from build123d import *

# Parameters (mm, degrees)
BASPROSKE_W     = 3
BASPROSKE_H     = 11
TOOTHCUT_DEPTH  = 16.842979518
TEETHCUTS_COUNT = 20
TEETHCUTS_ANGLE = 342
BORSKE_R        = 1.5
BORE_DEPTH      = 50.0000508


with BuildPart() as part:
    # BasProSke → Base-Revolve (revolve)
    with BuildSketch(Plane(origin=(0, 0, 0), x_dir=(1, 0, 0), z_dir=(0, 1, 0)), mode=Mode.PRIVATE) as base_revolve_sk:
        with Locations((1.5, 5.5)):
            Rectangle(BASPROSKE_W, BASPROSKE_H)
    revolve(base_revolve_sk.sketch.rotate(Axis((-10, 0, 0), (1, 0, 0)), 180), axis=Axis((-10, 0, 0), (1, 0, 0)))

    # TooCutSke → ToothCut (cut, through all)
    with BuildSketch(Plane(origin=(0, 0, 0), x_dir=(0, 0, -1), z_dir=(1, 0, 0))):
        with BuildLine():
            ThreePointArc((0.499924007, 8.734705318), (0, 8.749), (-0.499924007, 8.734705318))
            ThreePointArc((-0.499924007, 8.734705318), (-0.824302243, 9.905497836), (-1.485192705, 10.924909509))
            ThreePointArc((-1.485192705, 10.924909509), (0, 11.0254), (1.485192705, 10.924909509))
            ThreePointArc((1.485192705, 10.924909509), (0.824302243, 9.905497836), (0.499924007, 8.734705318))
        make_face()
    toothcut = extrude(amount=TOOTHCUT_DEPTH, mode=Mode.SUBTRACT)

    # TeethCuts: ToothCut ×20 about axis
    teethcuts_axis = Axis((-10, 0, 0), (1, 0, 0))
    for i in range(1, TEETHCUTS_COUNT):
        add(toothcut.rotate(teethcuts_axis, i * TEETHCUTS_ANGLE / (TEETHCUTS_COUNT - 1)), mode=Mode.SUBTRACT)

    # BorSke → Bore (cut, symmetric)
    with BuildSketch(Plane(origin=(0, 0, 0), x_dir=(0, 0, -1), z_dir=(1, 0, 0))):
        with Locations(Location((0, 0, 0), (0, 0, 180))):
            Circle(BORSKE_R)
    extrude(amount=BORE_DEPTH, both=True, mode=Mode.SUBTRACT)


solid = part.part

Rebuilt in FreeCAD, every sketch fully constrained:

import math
import FreeCAD as App
import Part
import Sketcher

V = App.Vector
Q = App.Units.Quantity


def add_polygon(sketch, points):
    """Adds a closed chain of lines whose ends are joined by coincident constraints."""
    first, n = sketch.GeometryCount, len(points)
    for a, b in zip(points, points[1:] + points[:1]):
        sketch.addGeometry(Part.LineSegment(App.Vector(*a, 0), App.Vector(*b, 0)), False)
    for i in range(n):
        sketch.addConstraint(Sketcher.Constraint("Coincident", first + i, 2, first + (i + 1) % n, 1))

doc = App.newDocument("Part")
body = doc.addObject("PartDesign::Body", "Body")

# Sketch on XZ plane
sketch1 = doc.addObject("Sketcher::SketchObject", "Sketch")
body.addObject(sketch1)
sketch1.AttachmentSupport = (doc.XZ_Plane, [""])
sketch1.MapMode = "FlatFace"
add_polygon(sketch1, [(0, -11), (0, 0), (3, 0), (3, -11)])  # lines 0-3
sketch1.addConstraint([
    Sketcher.Constraint("Vertical", 0),
    Sketcher.Constraint("Horizontal", 1),
    Sketcher.Constraint("Vertical", 2),
    Sketcher.Constraint("Horizontal", 3),
    Sketcher.Constraint("Coincident", 0, 2, -1, 1),
    Sketcher.Constraint("DistanceX", 1, 1, 1, 2, Q("3 mm")),
    Sketcher.Constraint("DistanceY", 0, 1, 0, 2, Q("11 mm")),
])
revolution = doc.addObject("PartDesign::Revolution", "Revolution")
body.addObject(revolution)
revolution.Profile = sketch1
revolution.ReferenceAxis = (sketch1, ["H_Axis"])
revolution.Angle = 360

# Sketch on YZ plane
sketch2 = doc.addObject("Sketcher::SketchObject", "Sketch001")
body.addObject(sketch2)
sketch2.AttachmentSupport = (doc.YZ_Plane, [""])
sketch2.MapMode = "FlatFace"
sketch2.addGeometry([
    Part.ArcOfCircle(Part.Circle(V(0, 0, 0), V(0, 0, 1), 8.7), math.radians(-3.28), math.radians(3.28)),
    Part.ArcOfCircle(Part.Circle(V(8.3, -4.5, 0), V(0, 0, 1), 4), math.radians(48), math.radians(83)),
    Part.ArcOfCircle(Part.Circle(V(0, 0, 0), V(0, 0, 1), 11), math.radians(-7.74), math.radians(7.74)),
    Part.ArcOfCircle(Part.Circle(V(8.3, 4.5, 0), V(0, 0, 1), 4), math.radians(-83), math.radians(-48)),
], False)
sketch2.addConstraint([
    Sketcher.Constraint("Coincident", 0, 1, 1, 2),
    Sketcher.Constraint("Coincident", 1, 1, 2, 1),
    Sketcher.Constraint("Coincident", 2, 2, 3, 2),
    Sketcher.Constraint("Coincident", 3, 1, 0, 2),
    Sketcher.Constraint("Coincident", 0, 3, -1, 1),
    Sketcher.Constraint("Coincident", 2, 3, -1, 1),
    Sketcher.Constraint("Equal", 1, 3),
    Sketcher.Constraint("Symmetric", 1, 3, 3, 3, -1),
    Sketcher.Constraint("Radius", 1, Q("4 mm")),
    Sketcher.Constraint("Radius", 0, Q("8.749 mm")),
    Sketcher.Constraint("Radius", 2, Q("11.0254 mm")),
    Sketcher.Constraint("DistanceY", 1, 3, -1, 1, Q("4.47219 mm")),
    Sketcher.Constraint("DistanceX", -1, 1, 1, 1, Q("10.92491 mm")),
])
pocket1 = doc.addObject("PartDesign::Pocket", "Pocket")
body.addObject(pocket1)
pocket1.Profile = sketch2
pocket1.Type = "ThroughAll"
pocket1.Reversed = True
doc.recompute()

polarpattern = doc.addObject("PartDesign::PolarPattern", "PolarPattern")
body.addObject(polarpattern)
polarpattern.Originals = [pocket1]
polarpattern.Axis = (doc.X_Axis, [""])
polarpattern.Angle = 360
polarpattern.Occurrences = 20
body.Tip = polarpattern

# Sketch on YZ plane
sketch3 = doc.addObject("Sketcher::SketchObject", "Sketch002")
body.addObject(sketch3)
sketch3.AttachmentSupport = (doc.YZ_Plane, [""])
sketch3.MapMode = "FlatFace"
sketch3.addGeometry(Part.Circle(V(0, 0, 0), V(0, 0, 1), 1.5), False)
sketch3.addConstraint([
    Sketcher.Constraint("Coincident", 0, 3, -1, 1),
    Sketcher.Constraint("Diameter", 0, Q("3 mm")),
])
pocket2 = doc.addObject("PartDesign::Pocket", "Pocket001")
body.addObject(pocket2)
pocket2.Profile = sketch3
pocket2.Length = 100.000102
pocket2.Midplane = True

doc.recompute()
